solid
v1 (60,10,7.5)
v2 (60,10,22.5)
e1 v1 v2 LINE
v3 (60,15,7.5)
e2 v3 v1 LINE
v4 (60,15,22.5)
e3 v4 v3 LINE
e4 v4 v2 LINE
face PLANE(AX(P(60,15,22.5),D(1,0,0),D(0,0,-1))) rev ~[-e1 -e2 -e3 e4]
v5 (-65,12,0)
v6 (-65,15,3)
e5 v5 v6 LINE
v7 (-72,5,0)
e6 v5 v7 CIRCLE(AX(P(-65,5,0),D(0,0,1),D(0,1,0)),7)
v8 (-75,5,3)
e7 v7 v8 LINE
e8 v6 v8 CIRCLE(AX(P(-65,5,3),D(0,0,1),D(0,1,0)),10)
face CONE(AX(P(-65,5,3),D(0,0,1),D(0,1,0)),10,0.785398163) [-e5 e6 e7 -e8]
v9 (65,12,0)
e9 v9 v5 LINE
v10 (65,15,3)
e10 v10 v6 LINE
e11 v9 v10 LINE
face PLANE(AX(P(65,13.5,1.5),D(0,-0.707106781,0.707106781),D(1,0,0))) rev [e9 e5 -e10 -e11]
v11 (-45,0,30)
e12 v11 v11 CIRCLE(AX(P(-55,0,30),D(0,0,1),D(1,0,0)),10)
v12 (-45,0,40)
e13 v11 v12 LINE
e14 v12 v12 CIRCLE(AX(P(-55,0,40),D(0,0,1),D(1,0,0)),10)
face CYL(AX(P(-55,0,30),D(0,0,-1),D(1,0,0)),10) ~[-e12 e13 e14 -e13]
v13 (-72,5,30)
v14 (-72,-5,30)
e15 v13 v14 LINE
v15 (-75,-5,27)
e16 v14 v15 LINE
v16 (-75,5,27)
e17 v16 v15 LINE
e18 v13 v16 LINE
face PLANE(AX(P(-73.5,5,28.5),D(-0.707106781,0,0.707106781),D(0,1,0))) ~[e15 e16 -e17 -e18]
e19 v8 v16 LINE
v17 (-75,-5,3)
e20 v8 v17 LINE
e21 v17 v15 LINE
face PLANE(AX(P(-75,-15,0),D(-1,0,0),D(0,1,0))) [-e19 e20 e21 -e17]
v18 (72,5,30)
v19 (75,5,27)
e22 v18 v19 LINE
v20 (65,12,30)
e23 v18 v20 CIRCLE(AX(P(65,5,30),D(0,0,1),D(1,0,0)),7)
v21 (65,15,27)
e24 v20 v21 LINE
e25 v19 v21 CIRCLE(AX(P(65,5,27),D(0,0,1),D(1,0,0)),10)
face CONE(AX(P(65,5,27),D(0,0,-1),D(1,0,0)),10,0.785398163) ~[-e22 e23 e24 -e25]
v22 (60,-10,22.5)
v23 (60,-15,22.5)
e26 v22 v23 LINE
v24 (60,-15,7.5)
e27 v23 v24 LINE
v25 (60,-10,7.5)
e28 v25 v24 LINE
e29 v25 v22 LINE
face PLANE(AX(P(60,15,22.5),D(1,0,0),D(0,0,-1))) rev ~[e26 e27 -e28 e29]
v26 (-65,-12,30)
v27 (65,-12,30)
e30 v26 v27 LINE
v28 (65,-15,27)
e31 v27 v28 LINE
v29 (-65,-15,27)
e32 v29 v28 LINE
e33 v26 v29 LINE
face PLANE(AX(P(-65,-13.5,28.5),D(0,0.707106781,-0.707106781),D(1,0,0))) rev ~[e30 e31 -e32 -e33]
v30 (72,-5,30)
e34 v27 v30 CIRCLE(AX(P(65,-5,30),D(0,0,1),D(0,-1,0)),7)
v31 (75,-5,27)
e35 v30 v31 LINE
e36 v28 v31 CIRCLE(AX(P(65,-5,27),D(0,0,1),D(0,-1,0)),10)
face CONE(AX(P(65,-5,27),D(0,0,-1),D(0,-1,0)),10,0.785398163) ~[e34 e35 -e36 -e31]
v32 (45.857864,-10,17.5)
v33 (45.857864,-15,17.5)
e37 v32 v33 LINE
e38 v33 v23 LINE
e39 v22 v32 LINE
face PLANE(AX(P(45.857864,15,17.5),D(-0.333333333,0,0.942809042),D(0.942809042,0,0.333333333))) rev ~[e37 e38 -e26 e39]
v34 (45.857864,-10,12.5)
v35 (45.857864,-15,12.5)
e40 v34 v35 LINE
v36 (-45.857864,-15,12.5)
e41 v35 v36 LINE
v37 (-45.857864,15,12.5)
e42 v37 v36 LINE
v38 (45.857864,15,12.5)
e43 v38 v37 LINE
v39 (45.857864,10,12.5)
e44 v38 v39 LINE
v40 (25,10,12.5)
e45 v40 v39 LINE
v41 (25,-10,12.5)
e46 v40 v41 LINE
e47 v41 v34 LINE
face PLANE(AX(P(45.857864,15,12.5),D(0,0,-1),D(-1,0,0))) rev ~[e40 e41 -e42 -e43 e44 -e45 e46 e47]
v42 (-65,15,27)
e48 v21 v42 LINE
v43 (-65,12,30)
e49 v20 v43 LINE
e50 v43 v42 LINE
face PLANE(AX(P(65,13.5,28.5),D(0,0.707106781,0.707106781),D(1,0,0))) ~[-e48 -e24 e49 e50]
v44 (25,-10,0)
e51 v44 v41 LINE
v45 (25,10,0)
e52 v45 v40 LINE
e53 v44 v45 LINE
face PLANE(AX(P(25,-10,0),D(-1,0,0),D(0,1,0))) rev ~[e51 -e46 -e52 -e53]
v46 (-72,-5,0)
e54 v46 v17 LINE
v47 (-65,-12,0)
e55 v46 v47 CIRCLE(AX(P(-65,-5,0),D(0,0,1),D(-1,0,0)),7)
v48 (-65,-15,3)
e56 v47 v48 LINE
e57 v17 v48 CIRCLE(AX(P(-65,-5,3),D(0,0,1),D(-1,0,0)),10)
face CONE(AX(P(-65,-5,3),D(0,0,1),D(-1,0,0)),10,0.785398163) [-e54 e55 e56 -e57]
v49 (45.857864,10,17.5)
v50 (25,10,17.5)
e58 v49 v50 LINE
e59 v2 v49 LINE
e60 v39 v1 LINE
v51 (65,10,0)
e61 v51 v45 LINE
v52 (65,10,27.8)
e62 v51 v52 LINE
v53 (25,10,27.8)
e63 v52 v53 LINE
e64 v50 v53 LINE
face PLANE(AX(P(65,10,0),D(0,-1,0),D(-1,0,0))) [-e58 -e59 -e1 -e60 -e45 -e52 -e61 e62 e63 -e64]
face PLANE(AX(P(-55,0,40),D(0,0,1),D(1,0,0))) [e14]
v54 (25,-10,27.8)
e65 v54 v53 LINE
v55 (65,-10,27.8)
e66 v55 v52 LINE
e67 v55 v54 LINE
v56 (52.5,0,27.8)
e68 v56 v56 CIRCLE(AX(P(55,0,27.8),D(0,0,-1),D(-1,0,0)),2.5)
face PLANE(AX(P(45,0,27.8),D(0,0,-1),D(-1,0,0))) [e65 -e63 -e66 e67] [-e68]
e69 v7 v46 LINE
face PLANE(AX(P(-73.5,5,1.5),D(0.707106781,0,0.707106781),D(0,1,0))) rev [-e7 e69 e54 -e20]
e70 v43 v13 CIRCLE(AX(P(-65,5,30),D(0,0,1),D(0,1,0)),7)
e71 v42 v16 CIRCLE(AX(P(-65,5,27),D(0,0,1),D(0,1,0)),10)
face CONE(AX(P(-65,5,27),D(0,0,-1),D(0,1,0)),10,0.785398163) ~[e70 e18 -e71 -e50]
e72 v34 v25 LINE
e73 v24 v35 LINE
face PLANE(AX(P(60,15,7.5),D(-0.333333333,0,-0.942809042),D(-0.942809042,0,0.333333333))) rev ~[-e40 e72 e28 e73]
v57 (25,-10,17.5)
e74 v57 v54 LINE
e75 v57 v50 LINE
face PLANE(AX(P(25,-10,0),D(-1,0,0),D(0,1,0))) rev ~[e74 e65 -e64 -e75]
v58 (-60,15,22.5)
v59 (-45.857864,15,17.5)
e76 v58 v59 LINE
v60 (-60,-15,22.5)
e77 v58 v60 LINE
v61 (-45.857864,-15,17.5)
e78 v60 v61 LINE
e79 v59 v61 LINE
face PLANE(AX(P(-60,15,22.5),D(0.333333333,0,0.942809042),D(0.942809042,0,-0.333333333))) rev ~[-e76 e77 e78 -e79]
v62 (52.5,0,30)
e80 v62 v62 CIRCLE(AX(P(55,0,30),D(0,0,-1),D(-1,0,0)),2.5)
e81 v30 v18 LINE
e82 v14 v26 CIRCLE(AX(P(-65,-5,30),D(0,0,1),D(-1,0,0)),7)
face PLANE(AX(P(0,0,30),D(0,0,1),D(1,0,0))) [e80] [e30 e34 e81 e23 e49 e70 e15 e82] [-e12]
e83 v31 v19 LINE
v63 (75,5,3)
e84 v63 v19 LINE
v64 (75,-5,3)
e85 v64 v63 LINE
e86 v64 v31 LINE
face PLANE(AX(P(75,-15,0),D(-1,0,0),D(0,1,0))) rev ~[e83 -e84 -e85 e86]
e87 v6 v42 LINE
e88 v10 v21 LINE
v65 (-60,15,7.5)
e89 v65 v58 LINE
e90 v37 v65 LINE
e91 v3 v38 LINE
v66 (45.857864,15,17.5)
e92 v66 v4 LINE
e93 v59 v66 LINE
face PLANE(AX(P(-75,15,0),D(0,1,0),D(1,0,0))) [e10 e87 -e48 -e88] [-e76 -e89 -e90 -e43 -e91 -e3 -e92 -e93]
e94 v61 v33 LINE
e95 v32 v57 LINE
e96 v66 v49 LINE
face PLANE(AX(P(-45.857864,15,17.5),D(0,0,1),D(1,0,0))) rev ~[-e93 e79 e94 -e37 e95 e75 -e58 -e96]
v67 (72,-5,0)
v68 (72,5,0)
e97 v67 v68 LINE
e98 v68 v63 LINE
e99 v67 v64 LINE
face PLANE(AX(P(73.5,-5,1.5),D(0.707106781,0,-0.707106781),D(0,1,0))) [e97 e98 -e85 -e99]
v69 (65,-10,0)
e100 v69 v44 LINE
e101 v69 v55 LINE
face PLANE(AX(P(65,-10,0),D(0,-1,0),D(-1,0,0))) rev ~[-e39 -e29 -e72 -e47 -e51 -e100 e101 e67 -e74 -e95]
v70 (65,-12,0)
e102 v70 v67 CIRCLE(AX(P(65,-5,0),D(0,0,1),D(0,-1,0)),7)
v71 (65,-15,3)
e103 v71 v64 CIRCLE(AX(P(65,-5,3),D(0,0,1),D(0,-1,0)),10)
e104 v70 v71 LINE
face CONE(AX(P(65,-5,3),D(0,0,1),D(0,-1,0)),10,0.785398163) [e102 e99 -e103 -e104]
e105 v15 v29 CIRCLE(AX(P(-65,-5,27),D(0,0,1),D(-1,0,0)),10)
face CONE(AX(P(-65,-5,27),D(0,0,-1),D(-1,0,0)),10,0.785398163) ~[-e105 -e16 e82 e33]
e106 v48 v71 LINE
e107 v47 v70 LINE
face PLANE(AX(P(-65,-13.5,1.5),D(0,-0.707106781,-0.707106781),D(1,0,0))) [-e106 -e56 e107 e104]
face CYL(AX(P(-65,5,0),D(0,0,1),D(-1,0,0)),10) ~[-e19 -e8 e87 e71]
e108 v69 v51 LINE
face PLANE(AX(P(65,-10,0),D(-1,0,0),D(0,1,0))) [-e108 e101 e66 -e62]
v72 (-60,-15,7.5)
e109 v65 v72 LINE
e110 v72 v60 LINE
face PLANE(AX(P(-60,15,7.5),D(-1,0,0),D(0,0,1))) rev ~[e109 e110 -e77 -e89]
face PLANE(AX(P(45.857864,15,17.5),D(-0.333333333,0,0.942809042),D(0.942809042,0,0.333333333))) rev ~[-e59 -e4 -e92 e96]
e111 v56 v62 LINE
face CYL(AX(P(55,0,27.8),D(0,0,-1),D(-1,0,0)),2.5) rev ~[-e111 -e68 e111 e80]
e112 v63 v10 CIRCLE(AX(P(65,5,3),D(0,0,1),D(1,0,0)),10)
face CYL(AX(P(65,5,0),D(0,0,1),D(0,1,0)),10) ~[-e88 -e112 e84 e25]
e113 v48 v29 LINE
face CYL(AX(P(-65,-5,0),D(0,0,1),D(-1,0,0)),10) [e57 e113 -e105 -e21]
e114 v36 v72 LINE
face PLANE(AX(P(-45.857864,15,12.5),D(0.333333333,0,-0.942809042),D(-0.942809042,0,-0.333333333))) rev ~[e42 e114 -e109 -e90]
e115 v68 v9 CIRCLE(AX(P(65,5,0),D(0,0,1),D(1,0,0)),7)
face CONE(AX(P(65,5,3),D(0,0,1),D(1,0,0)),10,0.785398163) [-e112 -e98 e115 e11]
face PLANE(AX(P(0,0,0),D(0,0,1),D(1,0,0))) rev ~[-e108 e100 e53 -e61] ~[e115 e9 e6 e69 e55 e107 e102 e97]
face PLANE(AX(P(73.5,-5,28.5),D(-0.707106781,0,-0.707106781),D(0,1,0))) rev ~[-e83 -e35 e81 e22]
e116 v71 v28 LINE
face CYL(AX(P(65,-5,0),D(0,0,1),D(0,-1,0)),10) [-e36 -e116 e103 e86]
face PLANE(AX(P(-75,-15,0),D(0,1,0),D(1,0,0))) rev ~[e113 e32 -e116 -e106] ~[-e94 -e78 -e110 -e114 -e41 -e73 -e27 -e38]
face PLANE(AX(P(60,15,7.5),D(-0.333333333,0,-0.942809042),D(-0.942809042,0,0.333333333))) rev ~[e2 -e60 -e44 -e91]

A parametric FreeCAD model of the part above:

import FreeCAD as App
import Part
import Sketcher

V = App.Vector


def edges_at(feature, points):
    """Names of the edges that pass closest to the given points."""
    edges = feature.Shape.Edges
    near = lambda p: min(range(len(edges)), key=lambda i: edges[i].distToShape(Part.Vertex(*p))[0])
    return sorted({f"Edge{near(p) + 1}" for p in points})

doc = App.newDocument("Part")
body = doc.addObject("PartDesign::Body", "Body")

sketch1 = body.newObject("Sketcher::SketchObject", "Sketch")
sketch1.AttachmentSupport = (doc.getObject("XY_Plane"), [""])
sketch1.MapMode = "FlatFace"
sketch1.addGeometry(Part.LineSegment(V(-75, 15, 0), V(-75, -15, 0)), False)
sketch1.addGeometry(Part.LineSegment(V(-75, -15, 0), V(75, -15, 0)), False)
sketch1.addGeometry(Part.LineSegment(V(75, -15, 0), V(75, 15, 0)), False)
sketch1.addGeometry(Part.LineSegment(V(75, 15, 0), V(-75, 15, 0)), False)
sketch1.addConstraint(Sketcher.Constraint("Coincident", 0, 2, 1, 1))
sketch1.addConstraint(Sketcher.Constraint("Coincident", 1, 2, 2, 1))
sketch1.addConstraint(Sketcher.Constraint("Coincident", 2, 2, 3, 1))
sketch1.addConstraint(Sketcher.Constraint("Coincident", 3, 2, 0, 1))
sketch1.addConstraint(Sketcher.Constraint("Vertical", 0))
sketch1.addConstraint(Sketcher.Constraint("Horizontal", 1))
sketch1.addConstraint(Sketcher.Constraint("Vertical", 2))
sketch1.addConstraint(Sketcher.Constraint("Horizontal", 3))
sketch1.addConstraint(Sketcher.Constraint("Symmetric", 0, 2, 2, 2, -1, 1))
sketch1.addConstraint(Sketcher.Constraint("DistanceX", 1, 1, 1, 2, 150.0))
sketch1.addConstraint(Sketcher.Constraint("DistanceY", 0, 2, 0, 1, 30.0))
pad1 = body.newObject("PartDesign::Pad", "Pad")
pad1.Profile = sketch1
pad1.Length = 30

sketch2 = body.newObject("Sketcher::SketchObject", "Sketch001")
sketch2.AttachmentSupport = (doc.getObject("XY_Plane"), [""])
sketch2.MapMode = "FlatFace"
sketch2.AttachmentOffset = App.Placement(V(0, 0, 30), App.Rotation())
sketch2.addGeometry(Part.Circle(V(-55, 0, 0), V(0, 0, 1), 10), False)
sketch2.addConstraint(Sketcher.Constraint("PointOnObject", 0, 3, -1))
sketch2.addConstraint(Sketcher.Constraint("Diameter", 0, 20.0))
sketch2.addConstraint(Sketcher.Constraint("DistanceX", 0, 3, -1, 1, 55.0))
pad2 = body.newObject("PartDesign::Pad", "Pad001")
pad2.Profile = sketch2
pad2.Length = 10
doc.recompute()

fillet = body.newObject("PartDesign::Fillet", "Fillet")
fillet.Base = (pad2, edges_at(pad2, [
    (75, -15, 15),
    (-75, -15, 15),
    (-75, 15, 15),
    (75, 15, 15),
]))
fillet.Radius = 10

sketch3 = body.newObject("Sketcher::SketchObject", "Sketch002")
sketch3.AttachmentSupport = (doc.getObject("XY_Plane"), [""])
sketch3.MapMode = "FlatFace"
sketch3.addGeometry(Part.LineSegment(V(65, 10, 0), V(65, -10, 0)), False)
sketch3.addGeometry(Part.LineSegment(V(65, -10, 0), V(25, -10, 0)), False)
sketch3.addGeometry(Part.LineSegment(V(25, -10, 0), V(25, 10, 0)), False)
sketch3.addGeometry(Part.LineSegment(V(25, 10, 0), V(65, 10, 0)), False)
sketch3.addConstraint(Sketcher.Constraint("Coincident", 0, 2, 1, 1))
sketch3.addConstraint(Sketcher.Constraint("Coincident", 1, 2, 2, 1))
sketch3.addConstraint(Sketcher.Constraint("Coincident", 2, 2, 3, 1))
sketch3.addConstraint(Sketcher.Constraint("Coincident", 3, 2, 0, 1))
sketch3.addConstraint(Sketcher.Constraint("Vertical", 0))
sketch3.addConstraint(Sketcher.Constraint("Horizontal", 1))
sketch3.addConstraint(Sketcher.Constraint("Vertical", 2))
sketch3.addConstraint(Sketcher.Constraint("Horizontal", 3))
sketch3.addConstraint(Sketcher.Constraint("DistanceX", 1, 2, 1, 1, 40.0))
sketch3.addConstraint(Sketcher.Constraint("DistanceY", 0, 2, 0, 1, 20.0))
sketch3.addConstraint(Sketcher.Constraint("DistanceX", -1, 1, 0, 2, 65.0))
sketch3.addConstraint(Sketcher.Constraint("DistanceY", 0, 2, -1, 1, 10.0))
pocket1 = body.newObject("PartDesign::Pocket", "Pocket")
pocket1.Profile = sketch3
pocket1.Length = 27.8
pocket1.Reversed = True

sketch4 = body.newObject("Sketcher::SketchObject", "Sketch003")
sketch4.AttachmentSupport = (doc.getObject("XY_Plane"), [""])
sketch4.MapMode = "FlatFace"
sketch4.AttachmentOffset = App.Placement(V(0, 0, 27.8), App.Rotation())
sketch4.addGeometry(Part.Circle(V(55, 0, 0), V(0, 0, 1), 2.5), False)
sketch4.addConstraint(Sketcher.Constraint("PointOnObject", 0, 3, -1))
sketch4.addConstraint(Sketcher.Constraint("Diameter", 0, 5.0))
sketch4.addConstraint(Sketcher.Constraint("DistanceX", -1, 1, 0, 3, 55.0))
pocket2 = body.newObject("PartDesign::Pocket", "Pocket001")
pocket2.Profile = sketch4
pocket2.Length = 27.8
pocket2.Reversed = True

sketch5 = body.newObject("Sketcher::SketchObject", "Sketch004")
sketch5.AttachmentSupport = (doc.getObject("XZ_Plane"), [""])
sketch5.MapMode = "FlatFace"
sketch5.AttachmentOffset = App.Placement(V(0, 0, -15), App.Rotation())
sketch5.addGeometry(Part.LineSegment(V(-60, 7.5, 0), V(-60, 22.5, 0)), False)
sketch5.addGeometry(Part.LineSegment(V(-60, 22.5, 0), V(-45.857864, 17.5, 0)), False)
sketch5.addGeometry(Part.LineSegment(V(-45.857864, 17.5, 0), V(45.857864, 17.5, 0)), False)
sketch5.addGeometry(Part.LineSegment(V(45.857864, 17.5, 0), V(60, 22.5, 0)), False)
sketch5.addGeometry(Part.LineSegment(V(60, 22.5, 0), V(60, 7.5, 0)), False)
sketch5.addGeometry(Part.LineSegment(V(60, 7.5, 0), V(45.857864, 12.5, 0)), False)
sketch5.addGeometry(Part.LineSegment(V(45.857864, 12.5, 0), V(-45.857864, 12.5, 0)), False)
sketch5.addGeometry(Part.LineSegment(V(-45.857864, 12.5, 0), V(-60, 7.5, 0)), False)
sketch5.addConstraint(Sketcher.Constraint("Coincident", 0, 2, 1, 1))
sketch5.addConstraint(Sketcher.Constraint("Coincident", 1, 2, 2, 1))
sketch5.addConstraint(Sketcher.Constraint("Coincident", 2, 2, 3, 1))
sketch5.addConstraint(Sketcher.Constraint("Coincident", 3, 2, 4, 1))
sketch5.addConstraint(Sketcher.Constraint("Coincident", 4, 2, 5, 1))
sketch5.addConstraint(Sketcher.Constraint("Coincident", 5, 2, 6, 1))
sketch5.addConstraint(Sketcher.Constraint("Coincident", 6, 2, 7, 1))
sketch5.addConstraint(Sketcher.Constraint("Coincident", 7, 2, 0, 1))
sketch5.addConstraint(Sketcher.Constraint("Vertical", 0))
sketch5.addConstraint(Sketcher.Constraint("Horizontal", 2))
sketch5.addConstraint(Sketcher.Constraint("Vertical", 4))
sketch5.addConstraint(Sketcher.Constraint("Horizontal", 6))
sketch5.addConstraint(Sketcher.Constraint("Symmetric", 0, 2, 3, 2, -2))
sketch5.addConstraint(Sketcher.Constraint("Parallel", 1, 5))
sketch5.addConstraint(Sketcher.Constraint("Parallel", 3, 7))
sketch5.addConstraint(Sketcher.Constraint("Horizontal", 4, 2, 7, 2))
sketch5.addConstraint(Sketcher.Constraint("Vertical", 2, 2, 5, 2))
sketch5.addConstraint(Sketcher.Constraint("Vertical", 1, 2, 6, 2))
sketch5.addConstraint(Sketcher.Constraint("DistanceY", 0, 1, 0, 2, 15.0))
sketch5.addConstraint(Sketcher.Constraint("Distance", 1, 15.0))
sketch5.addConstraint(Sketcher.Constraint("DistanceX", 0, 2, -1, 1, 60.0))
sketch5.addConstraint(Sketcher.Constraint("DistanceY", 1, 2, 0, 2, 5.0))
sketch5.addConstraint(Sketcher.Constraint("DistanceY", -1, 1, 0, 2, 22.5))
pocket3 = body.newObject("PartDesign::Pocket", "Pocket002")
pocket3.Profile = sketch5
pocket3.Type = "ThroughAll"
pocket3.Reversed = True
doc.recompute()

chamfer = body.newObject("PartDesign::Chamfer", "Chamfer")
chamfer.Base = (pocket3, edges_at(pocket3, [
    (75, 0, 0),
    (75, 0, 30),
    (0, -15, 0),
    (-75, 0, 0),
    (0, 15, 0),
    (-72.071, 12.071, 0),
    (-72.071, -12.071, 0),
    (72.071, 12.071, 0),
    (72.071, -12.071, 0),
    (0, -15, 30),
    (0, 15, 30),
    (-75, 0, 30),
    (-72.071, 12.071, 30),
    (-72.071, -12.071, 30),
    (72.071, 12.071, 30),
    (72.071, -12.071, 30),
]))
chamfer.Size = 3

doc.recompute()
